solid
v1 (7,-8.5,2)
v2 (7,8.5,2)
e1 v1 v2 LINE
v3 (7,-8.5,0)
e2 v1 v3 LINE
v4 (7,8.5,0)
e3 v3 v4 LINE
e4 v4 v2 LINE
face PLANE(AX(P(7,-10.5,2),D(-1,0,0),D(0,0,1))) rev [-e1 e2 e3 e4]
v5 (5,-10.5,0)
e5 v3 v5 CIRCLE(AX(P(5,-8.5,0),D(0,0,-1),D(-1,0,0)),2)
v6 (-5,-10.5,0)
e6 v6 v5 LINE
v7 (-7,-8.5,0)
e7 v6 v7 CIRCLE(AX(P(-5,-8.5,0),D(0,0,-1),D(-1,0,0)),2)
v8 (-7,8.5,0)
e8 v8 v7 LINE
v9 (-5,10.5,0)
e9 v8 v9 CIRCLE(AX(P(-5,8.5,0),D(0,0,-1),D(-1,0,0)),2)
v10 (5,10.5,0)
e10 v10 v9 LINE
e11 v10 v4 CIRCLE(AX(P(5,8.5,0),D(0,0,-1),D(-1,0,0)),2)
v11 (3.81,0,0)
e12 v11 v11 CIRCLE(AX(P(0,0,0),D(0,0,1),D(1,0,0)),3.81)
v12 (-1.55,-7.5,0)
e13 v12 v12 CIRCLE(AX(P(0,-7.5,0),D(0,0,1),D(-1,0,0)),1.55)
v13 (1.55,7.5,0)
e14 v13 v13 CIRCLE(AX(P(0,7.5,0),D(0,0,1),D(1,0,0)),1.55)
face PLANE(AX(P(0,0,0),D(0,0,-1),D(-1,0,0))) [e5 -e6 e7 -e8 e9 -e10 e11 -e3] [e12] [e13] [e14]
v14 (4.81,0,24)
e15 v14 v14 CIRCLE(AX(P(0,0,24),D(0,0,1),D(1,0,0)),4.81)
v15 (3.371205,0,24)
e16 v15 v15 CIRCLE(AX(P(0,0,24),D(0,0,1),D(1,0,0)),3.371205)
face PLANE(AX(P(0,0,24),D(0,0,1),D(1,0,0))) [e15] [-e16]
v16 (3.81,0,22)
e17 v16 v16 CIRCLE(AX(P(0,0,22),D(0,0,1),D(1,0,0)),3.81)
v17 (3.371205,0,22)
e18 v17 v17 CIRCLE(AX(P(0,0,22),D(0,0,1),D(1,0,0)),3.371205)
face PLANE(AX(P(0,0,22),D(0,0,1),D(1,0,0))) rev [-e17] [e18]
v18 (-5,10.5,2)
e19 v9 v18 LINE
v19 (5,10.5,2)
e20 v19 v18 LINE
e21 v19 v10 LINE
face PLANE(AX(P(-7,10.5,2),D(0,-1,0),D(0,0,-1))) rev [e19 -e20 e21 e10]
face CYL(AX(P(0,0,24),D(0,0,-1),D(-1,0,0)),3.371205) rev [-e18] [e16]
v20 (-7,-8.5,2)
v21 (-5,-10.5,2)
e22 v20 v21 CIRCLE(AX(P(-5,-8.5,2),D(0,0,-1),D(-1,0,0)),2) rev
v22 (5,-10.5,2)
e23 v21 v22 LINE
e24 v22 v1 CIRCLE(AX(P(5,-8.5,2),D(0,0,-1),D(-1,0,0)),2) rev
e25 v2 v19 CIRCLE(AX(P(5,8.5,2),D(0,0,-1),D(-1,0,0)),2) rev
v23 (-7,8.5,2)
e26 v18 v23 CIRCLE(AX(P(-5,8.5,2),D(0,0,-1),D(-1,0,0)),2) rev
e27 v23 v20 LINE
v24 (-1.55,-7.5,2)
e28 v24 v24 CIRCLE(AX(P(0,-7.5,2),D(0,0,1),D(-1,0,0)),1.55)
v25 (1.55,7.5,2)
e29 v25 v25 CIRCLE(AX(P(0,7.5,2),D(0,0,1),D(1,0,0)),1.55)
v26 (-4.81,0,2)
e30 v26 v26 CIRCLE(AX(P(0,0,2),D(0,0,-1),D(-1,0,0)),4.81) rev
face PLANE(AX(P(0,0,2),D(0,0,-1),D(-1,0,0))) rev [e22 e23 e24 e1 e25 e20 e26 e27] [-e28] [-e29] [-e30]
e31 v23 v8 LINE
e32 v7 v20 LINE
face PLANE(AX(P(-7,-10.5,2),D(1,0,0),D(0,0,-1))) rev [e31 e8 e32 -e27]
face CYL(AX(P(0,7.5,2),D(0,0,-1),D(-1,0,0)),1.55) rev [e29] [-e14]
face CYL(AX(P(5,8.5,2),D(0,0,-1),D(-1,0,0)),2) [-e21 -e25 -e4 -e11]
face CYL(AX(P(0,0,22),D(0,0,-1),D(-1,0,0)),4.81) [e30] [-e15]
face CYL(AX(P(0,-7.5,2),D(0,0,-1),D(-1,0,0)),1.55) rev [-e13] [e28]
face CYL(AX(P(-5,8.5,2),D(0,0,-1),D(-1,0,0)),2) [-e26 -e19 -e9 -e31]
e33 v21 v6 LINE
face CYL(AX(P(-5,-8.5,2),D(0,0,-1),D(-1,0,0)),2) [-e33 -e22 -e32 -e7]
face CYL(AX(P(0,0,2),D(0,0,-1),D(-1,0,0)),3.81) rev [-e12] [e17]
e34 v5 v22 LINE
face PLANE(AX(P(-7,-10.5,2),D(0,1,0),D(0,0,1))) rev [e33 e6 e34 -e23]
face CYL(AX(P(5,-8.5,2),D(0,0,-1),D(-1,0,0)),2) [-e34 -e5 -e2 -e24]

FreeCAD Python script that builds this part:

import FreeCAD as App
import Part
import Sketcher


def edges_at(feature, points):
    """Names of the edges that pass closest to the given points."""
    edges = feature.Shape.Edges
    near = lambda p: min(range(len(edges)), key=lambda i: edges[i].distToShape(Part.Vertex(*p))[0])
    return sorted({f"Edge{near(p) + 1}" for p in points})


def add_polygon(sketch, points):
    """Adds a closed chain of lines whose ends are joined by coincident constraints."""
    first, n = sketch.GeometryCount, len(points)
    for a, b in zip(points, points[1:] + points[:1]):
        sketch.addGeometry(Part.LineSegment(App.Vector(*a, 0), App.Vector(*b, 0)), False)
    for i in range(n):
        sketch.addConstraint(Sketcher.Constraint("Coincident", first + i, 2, first + (i + 1) % n, 1))

doc = App.newDocument("Part")
body = doc.addObject("PartDesign::Body", "Body")

sketch1 = body.newObject("Sketcher::SketchObject", "Sketch")
sketch1.AttachmentSupport = (doc.getObject("XY_Plane"), [""])
sketch1.MapMode = "FlatFace"
add_polygon(sketch1, [(-7, 10.5), (-7, -10.5), (7, -10.5), (7, 10.5)])
sketch1.addGeometry(Part.Circle(App.Vector(0, -7.5, 0), App.Vector(0, 0, 1), 1.6), False)
sketch1.addGeometry(Part.Circle(App.Vector(0, 0, 0), App.Vector(0, 0, 1), 3.8), False)
sketch1.addGeometry(Part.Circle(App.Vector(0, 7.5, 0), App.Vector(0, 0, 1), 1.6), False)
sketch1.addConstraint(Sketcher.Constraint("Vertical", 0))
sketch1.addConstraint(Sketcher.Constraint("Horizontal", 1))
sketch1.addConstraint(Sketcher.Constraint("Vertical", 2))
sketch1.addConstraint(Sketcher.Constraint("Horizontal", 3))
sketch1.addConstraint(Sketcher.Constraint("Coincident", 5, 3, -1, 1))
sketch1.addConstraint(Sketcher.Constraint("Equal", 4, 6))
sketch1.addConstraint(Sketcher.Constraint("Symmetric", 4, 3, 6, 3, -1, 1))
sketch1.addConstraint(Sketcher.Constraint("Symmetric", 0, 2, 2, 2, -1, 1))
sketch1.addConstraint(Sketcher.Constraint("PointOnObject", 4, 3, -2))
sketch1.addConstraint(Sketcher.Constraint("Diameter", 4, 3.1))
sketch1.addConstraint(Sketcher.Constraint("Diameter", 5, 7.62))
sketch1.addConstraint(Sketcher.Constraint("DistanceX", 1, 1, 1, 2, 14.0))
sketch1.addConstraint(Sketcher.Constraint("DistanceY", 0, 2, 0, 1, 21.0))
sketch1.addConstraint(Sketcher.Constraint("DistanceY", 4, 3, 6, 3, 15.0))
pad1 = body.newObject("PartDesign::Pad", "Pad")
pad1.Profile = sketch1
pad1.Length = 2
doc.recompute()

fillet = body.newObject("PartDesign::Fillet", "Fillet")
fillet.Base = (pad1, edges_at(pad1, [
    (7, -10.5, 1),
    (-7, -10.5, 1),
    (-7, 10.5, 1),
    (7, 10.5, 1),
]))
fillet.Radius = 2

sketch2 = body.newObject("Sketcher::SketchObject", "Sketch001")
sketch2.AttachmentSupport = (doc.getObject("XY_Plane"), [""])
sketch2.MapMode = "FlatFace"
sketch2.AttachmentOffset = App.Placement(App.Vector(0, 0, 2), App.Rotation())
sketch2.addGeometry(Part.Circle(App.Vector(0, 0, 0), App.Vector(0, 0, 1), 4.8), False)
sketch2.addGeometry(Part.Circle(App.Vector(0, 0, 0), App.Vector(0, 0, 1), 3.8), False)
sketch2.addConstraint(Sketcher.Constraint("Coincident", 0, 3, -1, 1))
sketch2.addConstraint(Sketcher.Constraint("Coincident", 1, 3, -1, 1))
sketch2.addConstraint(Sketcher.Constraint("Diameter", 0, 9.62))
sketch2.addConstraint(Sketcher.Constraint("Diameter", 1, 7.62))
pad2 = body.newObject("PartDesign::Pad", "Pad001")
pad2.Profile = sketch2
pad2.Length = 20

sketch3 = body.newObject("Sketcher::SketchObject", "Sketch002")
sketch3.AttachmentSupport = (doc.getObject("XY_Plane"), [""])
sketch3.MapMode = "FlatFace"
sketch3.AttachmentOffset = App.Placement(App.Vector(0, 0, 22), App.Rotation())
sketch3.addGeometry(Part.Circle(App.Vector(0, 0, 0), App.Vector(0, 0, 1), 4.8), False)
sketch3.addGeometry(Part.Circle(App.Vector(0, 0, 0), App.Vector(0, 0, 1), 3.4), False)
sketch3.addConstraint(Sketcher.Constraint("Coincident", 0, 3, -1, 1))
sketch3.addConstraint(Sketcher.Constraint("Coincident", 1, 3, -1, 1))
sketch3.addConstraint(Sketcher.Constraint("Diameter", 0, 9.62))
sketch3.addConstraint(Sketcher.Constraint("Diameter", 1, 6.742409))
pad3 = body.newObject("PartDesign::Pad", "Pad002")
pad3.Profile = sketch3
pad3.Length = 2

doc.recompute()
